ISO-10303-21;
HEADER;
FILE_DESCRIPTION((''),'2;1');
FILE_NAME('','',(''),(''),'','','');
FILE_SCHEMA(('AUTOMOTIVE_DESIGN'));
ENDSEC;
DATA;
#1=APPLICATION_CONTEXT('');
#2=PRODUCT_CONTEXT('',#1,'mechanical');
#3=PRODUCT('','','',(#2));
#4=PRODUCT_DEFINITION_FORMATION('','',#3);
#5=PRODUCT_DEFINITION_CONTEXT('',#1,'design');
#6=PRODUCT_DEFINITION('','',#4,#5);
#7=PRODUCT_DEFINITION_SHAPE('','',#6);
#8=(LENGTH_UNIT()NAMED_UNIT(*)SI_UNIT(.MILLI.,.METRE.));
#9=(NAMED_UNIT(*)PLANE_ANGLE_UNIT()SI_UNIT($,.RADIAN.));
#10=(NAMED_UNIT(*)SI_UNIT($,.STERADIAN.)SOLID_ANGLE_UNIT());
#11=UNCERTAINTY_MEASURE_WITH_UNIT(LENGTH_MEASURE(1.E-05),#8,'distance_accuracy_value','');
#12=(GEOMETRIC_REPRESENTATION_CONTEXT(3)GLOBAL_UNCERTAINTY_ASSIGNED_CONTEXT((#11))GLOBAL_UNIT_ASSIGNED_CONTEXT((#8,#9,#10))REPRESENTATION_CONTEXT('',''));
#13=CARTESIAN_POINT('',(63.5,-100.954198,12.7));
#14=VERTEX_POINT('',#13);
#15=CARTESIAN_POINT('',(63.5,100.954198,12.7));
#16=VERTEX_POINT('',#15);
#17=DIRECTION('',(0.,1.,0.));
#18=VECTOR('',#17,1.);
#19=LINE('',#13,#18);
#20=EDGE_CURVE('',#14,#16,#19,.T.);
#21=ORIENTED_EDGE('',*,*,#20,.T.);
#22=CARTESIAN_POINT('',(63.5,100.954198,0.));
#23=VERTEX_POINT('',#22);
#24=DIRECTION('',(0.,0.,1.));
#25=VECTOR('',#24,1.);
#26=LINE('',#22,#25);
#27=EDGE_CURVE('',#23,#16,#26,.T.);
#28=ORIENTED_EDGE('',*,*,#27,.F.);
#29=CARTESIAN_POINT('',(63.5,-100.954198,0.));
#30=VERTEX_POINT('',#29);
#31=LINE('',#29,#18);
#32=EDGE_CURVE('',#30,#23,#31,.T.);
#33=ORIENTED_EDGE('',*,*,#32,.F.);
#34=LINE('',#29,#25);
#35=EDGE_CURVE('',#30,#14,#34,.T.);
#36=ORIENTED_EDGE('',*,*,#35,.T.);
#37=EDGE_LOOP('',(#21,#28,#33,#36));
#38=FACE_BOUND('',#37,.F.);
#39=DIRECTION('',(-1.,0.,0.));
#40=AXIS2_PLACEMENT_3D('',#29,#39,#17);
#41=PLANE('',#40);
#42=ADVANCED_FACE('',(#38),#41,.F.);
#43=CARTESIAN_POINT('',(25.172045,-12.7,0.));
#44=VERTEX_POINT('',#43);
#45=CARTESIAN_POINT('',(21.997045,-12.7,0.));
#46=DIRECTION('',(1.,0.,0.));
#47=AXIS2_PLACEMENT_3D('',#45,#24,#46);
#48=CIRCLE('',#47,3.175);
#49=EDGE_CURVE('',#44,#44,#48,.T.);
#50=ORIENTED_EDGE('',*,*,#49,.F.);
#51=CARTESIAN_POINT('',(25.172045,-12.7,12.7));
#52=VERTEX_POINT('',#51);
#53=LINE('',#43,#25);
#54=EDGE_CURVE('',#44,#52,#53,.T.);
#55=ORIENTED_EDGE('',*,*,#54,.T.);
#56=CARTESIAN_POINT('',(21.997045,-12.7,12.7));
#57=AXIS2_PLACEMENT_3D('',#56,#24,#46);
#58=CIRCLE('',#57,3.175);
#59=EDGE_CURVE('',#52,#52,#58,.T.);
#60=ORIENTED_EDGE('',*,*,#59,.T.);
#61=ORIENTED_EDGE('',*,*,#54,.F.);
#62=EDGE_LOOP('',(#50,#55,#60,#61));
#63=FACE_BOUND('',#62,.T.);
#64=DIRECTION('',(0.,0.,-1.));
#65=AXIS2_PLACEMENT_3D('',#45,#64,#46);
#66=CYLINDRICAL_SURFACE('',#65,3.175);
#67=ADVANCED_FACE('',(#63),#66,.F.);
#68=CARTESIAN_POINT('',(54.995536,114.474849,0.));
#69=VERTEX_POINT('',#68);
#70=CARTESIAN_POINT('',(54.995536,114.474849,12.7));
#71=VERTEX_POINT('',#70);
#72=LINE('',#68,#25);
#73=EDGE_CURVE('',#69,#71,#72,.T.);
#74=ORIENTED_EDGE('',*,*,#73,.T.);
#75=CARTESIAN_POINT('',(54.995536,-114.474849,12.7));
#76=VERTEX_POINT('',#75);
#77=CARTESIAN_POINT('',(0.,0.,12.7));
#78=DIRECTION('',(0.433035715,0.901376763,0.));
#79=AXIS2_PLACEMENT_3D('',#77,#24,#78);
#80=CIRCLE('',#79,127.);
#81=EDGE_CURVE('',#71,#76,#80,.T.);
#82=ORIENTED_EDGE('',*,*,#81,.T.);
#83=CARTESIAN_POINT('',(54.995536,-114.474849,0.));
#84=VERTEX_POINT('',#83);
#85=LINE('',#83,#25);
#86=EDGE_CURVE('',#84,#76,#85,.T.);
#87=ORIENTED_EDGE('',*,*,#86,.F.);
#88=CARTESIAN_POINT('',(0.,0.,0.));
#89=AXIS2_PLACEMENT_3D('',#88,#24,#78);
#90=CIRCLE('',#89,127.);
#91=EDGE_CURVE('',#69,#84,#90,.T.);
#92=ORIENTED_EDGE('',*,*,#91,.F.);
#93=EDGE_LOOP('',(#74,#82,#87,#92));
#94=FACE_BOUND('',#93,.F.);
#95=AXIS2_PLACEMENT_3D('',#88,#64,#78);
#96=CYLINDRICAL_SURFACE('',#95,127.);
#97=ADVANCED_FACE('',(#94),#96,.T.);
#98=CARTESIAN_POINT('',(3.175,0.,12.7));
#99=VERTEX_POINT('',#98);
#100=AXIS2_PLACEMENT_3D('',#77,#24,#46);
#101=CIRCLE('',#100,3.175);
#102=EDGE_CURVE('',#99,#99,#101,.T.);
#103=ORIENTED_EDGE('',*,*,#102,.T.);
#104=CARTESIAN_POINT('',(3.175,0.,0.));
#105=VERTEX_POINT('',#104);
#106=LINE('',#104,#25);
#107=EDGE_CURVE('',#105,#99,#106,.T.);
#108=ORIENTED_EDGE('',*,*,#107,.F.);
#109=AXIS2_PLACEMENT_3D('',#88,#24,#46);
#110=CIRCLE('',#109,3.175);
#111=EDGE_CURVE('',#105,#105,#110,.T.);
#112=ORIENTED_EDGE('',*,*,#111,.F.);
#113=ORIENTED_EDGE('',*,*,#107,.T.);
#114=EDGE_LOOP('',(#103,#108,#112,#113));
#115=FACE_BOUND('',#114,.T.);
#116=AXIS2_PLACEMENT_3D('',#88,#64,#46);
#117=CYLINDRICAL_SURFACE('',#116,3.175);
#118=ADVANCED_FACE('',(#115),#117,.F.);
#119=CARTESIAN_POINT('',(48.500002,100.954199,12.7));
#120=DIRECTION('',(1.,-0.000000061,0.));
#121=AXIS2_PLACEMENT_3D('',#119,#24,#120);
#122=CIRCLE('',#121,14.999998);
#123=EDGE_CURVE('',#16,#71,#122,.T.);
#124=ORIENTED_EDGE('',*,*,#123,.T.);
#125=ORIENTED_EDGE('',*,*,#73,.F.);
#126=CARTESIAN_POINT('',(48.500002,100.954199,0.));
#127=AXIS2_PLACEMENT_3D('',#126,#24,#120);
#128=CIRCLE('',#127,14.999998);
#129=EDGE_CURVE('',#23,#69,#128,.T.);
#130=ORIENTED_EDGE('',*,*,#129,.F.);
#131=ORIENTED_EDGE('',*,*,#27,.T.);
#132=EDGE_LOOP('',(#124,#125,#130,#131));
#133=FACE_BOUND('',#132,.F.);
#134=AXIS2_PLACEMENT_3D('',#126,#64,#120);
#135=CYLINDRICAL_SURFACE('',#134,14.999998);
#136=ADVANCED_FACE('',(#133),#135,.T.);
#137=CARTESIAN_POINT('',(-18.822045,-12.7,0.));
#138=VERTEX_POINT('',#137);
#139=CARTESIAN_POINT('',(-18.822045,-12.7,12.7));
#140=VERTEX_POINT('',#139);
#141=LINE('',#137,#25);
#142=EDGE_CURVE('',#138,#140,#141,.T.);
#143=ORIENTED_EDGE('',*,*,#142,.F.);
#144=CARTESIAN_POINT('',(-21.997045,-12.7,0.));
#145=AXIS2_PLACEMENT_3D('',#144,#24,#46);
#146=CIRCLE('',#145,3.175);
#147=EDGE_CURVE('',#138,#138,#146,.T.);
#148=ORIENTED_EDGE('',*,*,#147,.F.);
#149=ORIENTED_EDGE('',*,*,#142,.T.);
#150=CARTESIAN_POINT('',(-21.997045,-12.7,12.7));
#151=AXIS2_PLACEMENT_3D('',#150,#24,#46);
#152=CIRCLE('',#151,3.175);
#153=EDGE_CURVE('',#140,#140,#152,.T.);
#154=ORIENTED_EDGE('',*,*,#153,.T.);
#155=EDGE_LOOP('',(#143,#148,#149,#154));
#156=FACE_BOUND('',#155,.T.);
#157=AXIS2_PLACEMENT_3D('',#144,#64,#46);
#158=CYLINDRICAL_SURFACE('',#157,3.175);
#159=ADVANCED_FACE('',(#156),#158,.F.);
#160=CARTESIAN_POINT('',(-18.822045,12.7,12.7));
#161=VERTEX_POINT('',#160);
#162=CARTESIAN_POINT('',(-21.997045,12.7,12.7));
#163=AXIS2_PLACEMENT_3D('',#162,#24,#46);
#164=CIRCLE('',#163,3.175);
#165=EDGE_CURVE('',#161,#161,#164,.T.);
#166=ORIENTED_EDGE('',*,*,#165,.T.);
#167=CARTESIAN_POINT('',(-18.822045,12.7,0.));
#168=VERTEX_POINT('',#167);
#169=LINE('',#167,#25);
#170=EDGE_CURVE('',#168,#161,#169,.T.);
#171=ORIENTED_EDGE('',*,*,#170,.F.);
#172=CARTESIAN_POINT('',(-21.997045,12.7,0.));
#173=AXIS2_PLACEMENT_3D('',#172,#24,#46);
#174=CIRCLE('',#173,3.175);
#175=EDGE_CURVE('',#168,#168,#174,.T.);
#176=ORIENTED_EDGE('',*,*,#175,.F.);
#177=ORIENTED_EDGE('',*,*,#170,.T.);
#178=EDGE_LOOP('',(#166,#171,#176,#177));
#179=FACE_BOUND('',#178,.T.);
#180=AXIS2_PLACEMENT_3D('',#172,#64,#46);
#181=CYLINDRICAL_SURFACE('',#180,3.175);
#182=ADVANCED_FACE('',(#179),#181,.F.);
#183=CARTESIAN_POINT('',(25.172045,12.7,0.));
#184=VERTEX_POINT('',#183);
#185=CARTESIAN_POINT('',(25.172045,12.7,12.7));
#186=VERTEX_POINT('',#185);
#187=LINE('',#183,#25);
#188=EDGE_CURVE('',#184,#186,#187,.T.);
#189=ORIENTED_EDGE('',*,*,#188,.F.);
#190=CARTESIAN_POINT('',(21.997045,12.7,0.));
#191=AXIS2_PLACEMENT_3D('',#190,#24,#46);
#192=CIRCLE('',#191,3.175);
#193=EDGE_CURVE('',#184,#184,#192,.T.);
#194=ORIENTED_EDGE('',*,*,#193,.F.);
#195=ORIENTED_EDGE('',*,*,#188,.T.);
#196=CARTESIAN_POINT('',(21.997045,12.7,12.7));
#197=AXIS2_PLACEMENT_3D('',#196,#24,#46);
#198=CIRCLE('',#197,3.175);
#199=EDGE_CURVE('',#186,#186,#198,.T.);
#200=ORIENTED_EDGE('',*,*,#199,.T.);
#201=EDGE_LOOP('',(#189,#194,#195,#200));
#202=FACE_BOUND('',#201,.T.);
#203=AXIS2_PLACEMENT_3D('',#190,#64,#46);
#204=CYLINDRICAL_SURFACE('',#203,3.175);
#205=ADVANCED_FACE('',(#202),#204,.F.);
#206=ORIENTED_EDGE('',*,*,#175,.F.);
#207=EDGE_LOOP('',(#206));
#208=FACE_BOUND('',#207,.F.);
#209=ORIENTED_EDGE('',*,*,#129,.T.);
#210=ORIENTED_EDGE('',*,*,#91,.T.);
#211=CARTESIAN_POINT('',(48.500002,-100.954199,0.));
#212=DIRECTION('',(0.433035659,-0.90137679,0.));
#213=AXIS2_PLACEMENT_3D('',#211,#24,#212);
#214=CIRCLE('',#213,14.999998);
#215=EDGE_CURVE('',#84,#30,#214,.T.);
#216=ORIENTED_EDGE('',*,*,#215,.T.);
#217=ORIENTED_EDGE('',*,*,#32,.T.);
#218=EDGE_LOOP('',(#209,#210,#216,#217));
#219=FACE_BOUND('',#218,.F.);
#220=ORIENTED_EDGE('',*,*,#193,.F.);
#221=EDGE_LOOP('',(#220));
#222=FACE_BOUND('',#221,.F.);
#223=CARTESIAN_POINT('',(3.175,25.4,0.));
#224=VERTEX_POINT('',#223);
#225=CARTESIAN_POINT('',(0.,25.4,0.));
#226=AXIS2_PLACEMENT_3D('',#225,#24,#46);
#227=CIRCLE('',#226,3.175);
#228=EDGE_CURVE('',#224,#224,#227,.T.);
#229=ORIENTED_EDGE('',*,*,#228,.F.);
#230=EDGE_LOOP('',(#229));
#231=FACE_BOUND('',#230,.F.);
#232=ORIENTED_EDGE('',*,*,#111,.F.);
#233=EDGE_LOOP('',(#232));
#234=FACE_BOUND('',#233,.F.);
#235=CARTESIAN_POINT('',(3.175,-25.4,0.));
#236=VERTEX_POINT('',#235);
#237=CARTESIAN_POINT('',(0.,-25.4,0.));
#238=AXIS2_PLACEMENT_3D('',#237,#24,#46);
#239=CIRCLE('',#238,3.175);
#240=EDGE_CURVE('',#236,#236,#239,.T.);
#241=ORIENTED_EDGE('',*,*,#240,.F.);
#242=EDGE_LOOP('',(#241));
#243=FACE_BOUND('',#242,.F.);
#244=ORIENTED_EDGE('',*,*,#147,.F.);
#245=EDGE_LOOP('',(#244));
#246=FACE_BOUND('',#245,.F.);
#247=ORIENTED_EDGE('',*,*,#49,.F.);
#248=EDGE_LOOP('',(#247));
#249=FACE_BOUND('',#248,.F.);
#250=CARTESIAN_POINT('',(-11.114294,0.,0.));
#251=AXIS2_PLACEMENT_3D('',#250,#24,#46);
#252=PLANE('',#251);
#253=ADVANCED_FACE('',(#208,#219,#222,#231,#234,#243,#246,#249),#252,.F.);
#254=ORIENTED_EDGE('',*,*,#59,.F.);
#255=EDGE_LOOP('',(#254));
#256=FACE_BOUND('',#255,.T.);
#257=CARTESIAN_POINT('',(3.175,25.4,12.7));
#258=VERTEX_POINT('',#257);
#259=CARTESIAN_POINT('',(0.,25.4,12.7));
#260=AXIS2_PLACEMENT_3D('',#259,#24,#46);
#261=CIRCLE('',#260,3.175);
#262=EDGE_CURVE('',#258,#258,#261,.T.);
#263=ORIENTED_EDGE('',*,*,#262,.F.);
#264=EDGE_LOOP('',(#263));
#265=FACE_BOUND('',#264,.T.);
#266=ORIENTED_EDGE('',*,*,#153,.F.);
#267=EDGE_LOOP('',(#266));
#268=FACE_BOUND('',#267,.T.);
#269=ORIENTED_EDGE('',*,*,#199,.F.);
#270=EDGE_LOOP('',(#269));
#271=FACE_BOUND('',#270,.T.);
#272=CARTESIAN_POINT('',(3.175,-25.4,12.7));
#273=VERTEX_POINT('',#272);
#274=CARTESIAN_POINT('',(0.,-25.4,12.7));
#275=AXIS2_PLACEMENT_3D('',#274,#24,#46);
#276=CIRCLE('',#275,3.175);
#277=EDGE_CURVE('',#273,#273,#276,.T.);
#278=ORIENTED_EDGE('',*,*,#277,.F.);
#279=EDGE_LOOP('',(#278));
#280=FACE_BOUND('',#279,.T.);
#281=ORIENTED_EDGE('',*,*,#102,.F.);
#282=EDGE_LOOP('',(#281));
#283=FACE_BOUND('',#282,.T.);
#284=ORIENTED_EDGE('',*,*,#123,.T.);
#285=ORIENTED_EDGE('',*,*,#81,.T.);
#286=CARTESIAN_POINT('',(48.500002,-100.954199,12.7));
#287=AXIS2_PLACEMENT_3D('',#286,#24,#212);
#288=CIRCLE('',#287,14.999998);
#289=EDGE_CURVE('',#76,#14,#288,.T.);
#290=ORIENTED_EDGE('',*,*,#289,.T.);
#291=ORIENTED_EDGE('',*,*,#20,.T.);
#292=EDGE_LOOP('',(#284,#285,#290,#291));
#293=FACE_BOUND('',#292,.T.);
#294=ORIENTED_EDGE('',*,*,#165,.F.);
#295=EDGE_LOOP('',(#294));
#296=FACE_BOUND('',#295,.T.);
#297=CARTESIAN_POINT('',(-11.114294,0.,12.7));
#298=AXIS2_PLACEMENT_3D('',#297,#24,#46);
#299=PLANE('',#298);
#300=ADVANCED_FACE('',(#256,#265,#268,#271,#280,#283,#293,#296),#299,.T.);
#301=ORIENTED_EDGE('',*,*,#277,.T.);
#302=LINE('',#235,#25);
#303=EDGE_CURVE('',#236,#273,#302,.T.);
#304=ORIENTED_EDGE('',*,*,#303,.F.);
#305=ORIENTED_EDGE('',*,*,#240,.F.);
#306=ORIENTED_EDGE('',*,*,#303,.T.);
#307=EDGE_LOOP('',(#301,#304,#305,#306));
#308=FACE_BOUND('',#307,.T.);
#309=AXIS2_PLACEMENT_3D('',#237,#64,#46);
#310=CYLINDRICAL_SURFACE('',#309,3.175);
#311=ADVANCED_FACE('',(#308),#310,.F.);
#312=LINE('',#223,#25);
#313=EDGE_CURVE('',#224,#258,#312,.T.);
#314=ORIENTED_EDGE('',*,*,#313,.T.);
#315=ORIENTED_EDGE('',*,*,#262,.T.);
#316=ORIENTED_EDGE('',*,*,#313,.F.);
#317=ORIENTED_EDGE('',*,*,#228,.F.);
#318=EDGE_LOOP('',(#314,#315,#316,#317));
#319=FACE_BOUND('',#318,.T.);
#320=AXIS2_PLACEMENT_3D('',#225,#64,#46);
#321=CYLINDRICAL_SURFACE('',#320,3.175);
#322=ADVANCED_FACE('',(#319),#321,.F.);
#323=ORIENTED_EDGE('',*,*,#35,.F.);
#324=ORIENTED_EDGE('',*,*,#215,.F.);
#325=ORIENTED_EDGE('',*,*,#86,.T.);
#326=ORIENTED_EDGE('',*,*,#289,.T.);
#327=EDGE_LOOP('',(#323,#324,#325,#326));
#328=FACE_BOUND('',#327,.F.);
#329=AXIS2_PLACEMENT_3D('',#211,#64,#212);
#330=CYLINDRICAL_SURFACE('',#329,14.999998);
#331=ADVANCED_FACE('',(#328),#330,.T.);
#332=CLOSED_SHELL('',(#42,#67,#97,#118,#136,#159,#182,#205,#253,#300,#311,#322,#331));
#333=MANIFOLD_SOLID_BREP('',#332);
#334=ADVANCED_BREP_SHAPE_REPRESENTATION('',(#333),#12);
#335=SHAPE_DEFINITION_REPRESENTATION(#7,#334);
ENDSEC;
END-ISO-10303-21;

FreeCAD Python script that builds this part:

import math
import FreeCAD as App
import Part
import Sketcher
Q = App.Units.Quantity

doc = App.newDocument("Part")
body = doc.addObject("PartDesign::Body", "Body")

sketch1 = body.newObject("Sketcher::SketchObject", "Sketch")
sketch1.AttachmentSupport = (doc.getObject("XY_Plane"), [""])
sketch1.MapMode = "FlatFace"
sketch1.addGeometry([
    Part.ArcOfCircle(Part.Circle(App.Vector(48.500002, 100.954199, 0), App.Vector(0, 0, 1), 14.999998), math.radians(-0.000004), math.radians(64.339634)),
    Part.ArcOfCircle(Part.Circle(App.Vector(0, 0, 0), App.Vector(0, 0, 1), 127), math.radians(64.339631), math.radians(295.660369)),
    Part.ArcOfCircle(Part.Circle(App.Vector(48.500002, -100.954199, 0), App.Vector(0, 0, 1), 14.999998), math.radians(-64.339634), math.radians(0.000004)),
    Part.LineSegment(App.Vector(63.5, -100.954198, 0), App.Vector(63.5, 100.954198, 0)),
], False)
sketch1.addConstraint([
    Sketcher.Constraint("Tangent", 0, 2, 1, 1),
    Sketcher.Constraint("Tangent", 1, 2, 2, 1),
    Sketcher.Constraint("Tangent", 2, 2, 3, 1),
    Sketcher.Constraint("Tangent", 3, 2, 0, 1),
    Sketcher.Constraint("Vertical", 3),
    Sketcher.Constraint("Coincident", 1, 3, -1, 1),
    Sketcher.Constraint("Equal", 0, 2),
    Sketcher.Constraint("Radius", 1, Q("5 in")),
    Sketcher.Constraint("DistanceX", -1, 1, 2, 2, Q("2.5 in")),
    Sketcher.Constraint("Radius", 0, Q("14.999998 mm")),
])
pad1 = body.newObject("PartDesign::Pad", "Pad")
pad1.Profile = sketch1
pad1.Length = Q("0.5 in")

sketch2 = body.newObject("Sketcher::SketchObject", "Sketch001")
sketch2.AttachmentSupport = (doc.getObject("XY_Plane"), [""])
sketch2.MapMode = "FlatFace"
sketch2.addGeometry([
    Part.Circle(App.Vector(0, 0, 0), App.Vector(0, 0, 1), 3.175),
    Part.Circle(App.Vector(0, 25.4, 0), App.Vector(0, 0, 1), 3.175),
    Part.Circle(App.Vector(-21.997045, 12.7, 0), App.Vector(0, 0, 1), 3.175),
    Part.Circle(App.Vector(-21.997045, -12.7, 0), App.Vector(0, 0, 1), 3.175),
    Part.Circle(App.Vector(0, -25.4, 0), App.Vector(0, 0, 1), 3.175),
    Part.Circle(App.Vector(21.997045, -12.7, 0), App.Vector(0, 0, 1), 3.175),
    Part.Circle(App.Vector(21.997045, 12.7, 0), App.Vector(0, 0, 1), 3.175),
], False)
sketch2.addConstraint([
    Sketcher.Constraint("Coincident", 0, 3, -1, 1),
    Sketcher.Constraint("Equal", 0, 1),
    Sketcher.Constraint("Equal", 1, 2),
    Sketcher.Constraint("Equal", 2, 3),
    Sketcher.Constraint("Equal", 3, 4),
    Sketcher.Constraint("Equal", 4, 5),
    Sketcher.Constraint("Equal", 5, 6),
    Sketcher.Constraint("Symmetric", 1, 3, 4, 3, -1, 1),
    Sketcher.Constraint("Symmetric", 2, 3, 5, 3, -1, 1),
    Sketcher.Constraint("Symmetric", 3, 3, 6, 3, -1, 1),
    Sketcher.Constraint("Symmetric", 3, 3, 5, 3, -2),
    Sketcher.Constraint("PointOnObject", 1, 3, -2),
    Sketcher.Constraint("Diameter", 0, Q("0.25 in")),
    Sketcher.Constraint("DistanceY", -1, 1, 1, 3, Q("1 in")),
    Sketcher.Constraint("DistanceY", 3, 3, 2, 3, Q("1 in")),
    Sketcher.Constraint("DistanceX", 3, 3, 5, 3, Q("43.99409 mm")),
])
pocket1 = body.newObject("PartDesign::Pocket", "Pocket")
pocket1.Profile = sketch2
pocket1.Type = "ThroughAll"
pocket1.Reversed = True

doc.recompute()
